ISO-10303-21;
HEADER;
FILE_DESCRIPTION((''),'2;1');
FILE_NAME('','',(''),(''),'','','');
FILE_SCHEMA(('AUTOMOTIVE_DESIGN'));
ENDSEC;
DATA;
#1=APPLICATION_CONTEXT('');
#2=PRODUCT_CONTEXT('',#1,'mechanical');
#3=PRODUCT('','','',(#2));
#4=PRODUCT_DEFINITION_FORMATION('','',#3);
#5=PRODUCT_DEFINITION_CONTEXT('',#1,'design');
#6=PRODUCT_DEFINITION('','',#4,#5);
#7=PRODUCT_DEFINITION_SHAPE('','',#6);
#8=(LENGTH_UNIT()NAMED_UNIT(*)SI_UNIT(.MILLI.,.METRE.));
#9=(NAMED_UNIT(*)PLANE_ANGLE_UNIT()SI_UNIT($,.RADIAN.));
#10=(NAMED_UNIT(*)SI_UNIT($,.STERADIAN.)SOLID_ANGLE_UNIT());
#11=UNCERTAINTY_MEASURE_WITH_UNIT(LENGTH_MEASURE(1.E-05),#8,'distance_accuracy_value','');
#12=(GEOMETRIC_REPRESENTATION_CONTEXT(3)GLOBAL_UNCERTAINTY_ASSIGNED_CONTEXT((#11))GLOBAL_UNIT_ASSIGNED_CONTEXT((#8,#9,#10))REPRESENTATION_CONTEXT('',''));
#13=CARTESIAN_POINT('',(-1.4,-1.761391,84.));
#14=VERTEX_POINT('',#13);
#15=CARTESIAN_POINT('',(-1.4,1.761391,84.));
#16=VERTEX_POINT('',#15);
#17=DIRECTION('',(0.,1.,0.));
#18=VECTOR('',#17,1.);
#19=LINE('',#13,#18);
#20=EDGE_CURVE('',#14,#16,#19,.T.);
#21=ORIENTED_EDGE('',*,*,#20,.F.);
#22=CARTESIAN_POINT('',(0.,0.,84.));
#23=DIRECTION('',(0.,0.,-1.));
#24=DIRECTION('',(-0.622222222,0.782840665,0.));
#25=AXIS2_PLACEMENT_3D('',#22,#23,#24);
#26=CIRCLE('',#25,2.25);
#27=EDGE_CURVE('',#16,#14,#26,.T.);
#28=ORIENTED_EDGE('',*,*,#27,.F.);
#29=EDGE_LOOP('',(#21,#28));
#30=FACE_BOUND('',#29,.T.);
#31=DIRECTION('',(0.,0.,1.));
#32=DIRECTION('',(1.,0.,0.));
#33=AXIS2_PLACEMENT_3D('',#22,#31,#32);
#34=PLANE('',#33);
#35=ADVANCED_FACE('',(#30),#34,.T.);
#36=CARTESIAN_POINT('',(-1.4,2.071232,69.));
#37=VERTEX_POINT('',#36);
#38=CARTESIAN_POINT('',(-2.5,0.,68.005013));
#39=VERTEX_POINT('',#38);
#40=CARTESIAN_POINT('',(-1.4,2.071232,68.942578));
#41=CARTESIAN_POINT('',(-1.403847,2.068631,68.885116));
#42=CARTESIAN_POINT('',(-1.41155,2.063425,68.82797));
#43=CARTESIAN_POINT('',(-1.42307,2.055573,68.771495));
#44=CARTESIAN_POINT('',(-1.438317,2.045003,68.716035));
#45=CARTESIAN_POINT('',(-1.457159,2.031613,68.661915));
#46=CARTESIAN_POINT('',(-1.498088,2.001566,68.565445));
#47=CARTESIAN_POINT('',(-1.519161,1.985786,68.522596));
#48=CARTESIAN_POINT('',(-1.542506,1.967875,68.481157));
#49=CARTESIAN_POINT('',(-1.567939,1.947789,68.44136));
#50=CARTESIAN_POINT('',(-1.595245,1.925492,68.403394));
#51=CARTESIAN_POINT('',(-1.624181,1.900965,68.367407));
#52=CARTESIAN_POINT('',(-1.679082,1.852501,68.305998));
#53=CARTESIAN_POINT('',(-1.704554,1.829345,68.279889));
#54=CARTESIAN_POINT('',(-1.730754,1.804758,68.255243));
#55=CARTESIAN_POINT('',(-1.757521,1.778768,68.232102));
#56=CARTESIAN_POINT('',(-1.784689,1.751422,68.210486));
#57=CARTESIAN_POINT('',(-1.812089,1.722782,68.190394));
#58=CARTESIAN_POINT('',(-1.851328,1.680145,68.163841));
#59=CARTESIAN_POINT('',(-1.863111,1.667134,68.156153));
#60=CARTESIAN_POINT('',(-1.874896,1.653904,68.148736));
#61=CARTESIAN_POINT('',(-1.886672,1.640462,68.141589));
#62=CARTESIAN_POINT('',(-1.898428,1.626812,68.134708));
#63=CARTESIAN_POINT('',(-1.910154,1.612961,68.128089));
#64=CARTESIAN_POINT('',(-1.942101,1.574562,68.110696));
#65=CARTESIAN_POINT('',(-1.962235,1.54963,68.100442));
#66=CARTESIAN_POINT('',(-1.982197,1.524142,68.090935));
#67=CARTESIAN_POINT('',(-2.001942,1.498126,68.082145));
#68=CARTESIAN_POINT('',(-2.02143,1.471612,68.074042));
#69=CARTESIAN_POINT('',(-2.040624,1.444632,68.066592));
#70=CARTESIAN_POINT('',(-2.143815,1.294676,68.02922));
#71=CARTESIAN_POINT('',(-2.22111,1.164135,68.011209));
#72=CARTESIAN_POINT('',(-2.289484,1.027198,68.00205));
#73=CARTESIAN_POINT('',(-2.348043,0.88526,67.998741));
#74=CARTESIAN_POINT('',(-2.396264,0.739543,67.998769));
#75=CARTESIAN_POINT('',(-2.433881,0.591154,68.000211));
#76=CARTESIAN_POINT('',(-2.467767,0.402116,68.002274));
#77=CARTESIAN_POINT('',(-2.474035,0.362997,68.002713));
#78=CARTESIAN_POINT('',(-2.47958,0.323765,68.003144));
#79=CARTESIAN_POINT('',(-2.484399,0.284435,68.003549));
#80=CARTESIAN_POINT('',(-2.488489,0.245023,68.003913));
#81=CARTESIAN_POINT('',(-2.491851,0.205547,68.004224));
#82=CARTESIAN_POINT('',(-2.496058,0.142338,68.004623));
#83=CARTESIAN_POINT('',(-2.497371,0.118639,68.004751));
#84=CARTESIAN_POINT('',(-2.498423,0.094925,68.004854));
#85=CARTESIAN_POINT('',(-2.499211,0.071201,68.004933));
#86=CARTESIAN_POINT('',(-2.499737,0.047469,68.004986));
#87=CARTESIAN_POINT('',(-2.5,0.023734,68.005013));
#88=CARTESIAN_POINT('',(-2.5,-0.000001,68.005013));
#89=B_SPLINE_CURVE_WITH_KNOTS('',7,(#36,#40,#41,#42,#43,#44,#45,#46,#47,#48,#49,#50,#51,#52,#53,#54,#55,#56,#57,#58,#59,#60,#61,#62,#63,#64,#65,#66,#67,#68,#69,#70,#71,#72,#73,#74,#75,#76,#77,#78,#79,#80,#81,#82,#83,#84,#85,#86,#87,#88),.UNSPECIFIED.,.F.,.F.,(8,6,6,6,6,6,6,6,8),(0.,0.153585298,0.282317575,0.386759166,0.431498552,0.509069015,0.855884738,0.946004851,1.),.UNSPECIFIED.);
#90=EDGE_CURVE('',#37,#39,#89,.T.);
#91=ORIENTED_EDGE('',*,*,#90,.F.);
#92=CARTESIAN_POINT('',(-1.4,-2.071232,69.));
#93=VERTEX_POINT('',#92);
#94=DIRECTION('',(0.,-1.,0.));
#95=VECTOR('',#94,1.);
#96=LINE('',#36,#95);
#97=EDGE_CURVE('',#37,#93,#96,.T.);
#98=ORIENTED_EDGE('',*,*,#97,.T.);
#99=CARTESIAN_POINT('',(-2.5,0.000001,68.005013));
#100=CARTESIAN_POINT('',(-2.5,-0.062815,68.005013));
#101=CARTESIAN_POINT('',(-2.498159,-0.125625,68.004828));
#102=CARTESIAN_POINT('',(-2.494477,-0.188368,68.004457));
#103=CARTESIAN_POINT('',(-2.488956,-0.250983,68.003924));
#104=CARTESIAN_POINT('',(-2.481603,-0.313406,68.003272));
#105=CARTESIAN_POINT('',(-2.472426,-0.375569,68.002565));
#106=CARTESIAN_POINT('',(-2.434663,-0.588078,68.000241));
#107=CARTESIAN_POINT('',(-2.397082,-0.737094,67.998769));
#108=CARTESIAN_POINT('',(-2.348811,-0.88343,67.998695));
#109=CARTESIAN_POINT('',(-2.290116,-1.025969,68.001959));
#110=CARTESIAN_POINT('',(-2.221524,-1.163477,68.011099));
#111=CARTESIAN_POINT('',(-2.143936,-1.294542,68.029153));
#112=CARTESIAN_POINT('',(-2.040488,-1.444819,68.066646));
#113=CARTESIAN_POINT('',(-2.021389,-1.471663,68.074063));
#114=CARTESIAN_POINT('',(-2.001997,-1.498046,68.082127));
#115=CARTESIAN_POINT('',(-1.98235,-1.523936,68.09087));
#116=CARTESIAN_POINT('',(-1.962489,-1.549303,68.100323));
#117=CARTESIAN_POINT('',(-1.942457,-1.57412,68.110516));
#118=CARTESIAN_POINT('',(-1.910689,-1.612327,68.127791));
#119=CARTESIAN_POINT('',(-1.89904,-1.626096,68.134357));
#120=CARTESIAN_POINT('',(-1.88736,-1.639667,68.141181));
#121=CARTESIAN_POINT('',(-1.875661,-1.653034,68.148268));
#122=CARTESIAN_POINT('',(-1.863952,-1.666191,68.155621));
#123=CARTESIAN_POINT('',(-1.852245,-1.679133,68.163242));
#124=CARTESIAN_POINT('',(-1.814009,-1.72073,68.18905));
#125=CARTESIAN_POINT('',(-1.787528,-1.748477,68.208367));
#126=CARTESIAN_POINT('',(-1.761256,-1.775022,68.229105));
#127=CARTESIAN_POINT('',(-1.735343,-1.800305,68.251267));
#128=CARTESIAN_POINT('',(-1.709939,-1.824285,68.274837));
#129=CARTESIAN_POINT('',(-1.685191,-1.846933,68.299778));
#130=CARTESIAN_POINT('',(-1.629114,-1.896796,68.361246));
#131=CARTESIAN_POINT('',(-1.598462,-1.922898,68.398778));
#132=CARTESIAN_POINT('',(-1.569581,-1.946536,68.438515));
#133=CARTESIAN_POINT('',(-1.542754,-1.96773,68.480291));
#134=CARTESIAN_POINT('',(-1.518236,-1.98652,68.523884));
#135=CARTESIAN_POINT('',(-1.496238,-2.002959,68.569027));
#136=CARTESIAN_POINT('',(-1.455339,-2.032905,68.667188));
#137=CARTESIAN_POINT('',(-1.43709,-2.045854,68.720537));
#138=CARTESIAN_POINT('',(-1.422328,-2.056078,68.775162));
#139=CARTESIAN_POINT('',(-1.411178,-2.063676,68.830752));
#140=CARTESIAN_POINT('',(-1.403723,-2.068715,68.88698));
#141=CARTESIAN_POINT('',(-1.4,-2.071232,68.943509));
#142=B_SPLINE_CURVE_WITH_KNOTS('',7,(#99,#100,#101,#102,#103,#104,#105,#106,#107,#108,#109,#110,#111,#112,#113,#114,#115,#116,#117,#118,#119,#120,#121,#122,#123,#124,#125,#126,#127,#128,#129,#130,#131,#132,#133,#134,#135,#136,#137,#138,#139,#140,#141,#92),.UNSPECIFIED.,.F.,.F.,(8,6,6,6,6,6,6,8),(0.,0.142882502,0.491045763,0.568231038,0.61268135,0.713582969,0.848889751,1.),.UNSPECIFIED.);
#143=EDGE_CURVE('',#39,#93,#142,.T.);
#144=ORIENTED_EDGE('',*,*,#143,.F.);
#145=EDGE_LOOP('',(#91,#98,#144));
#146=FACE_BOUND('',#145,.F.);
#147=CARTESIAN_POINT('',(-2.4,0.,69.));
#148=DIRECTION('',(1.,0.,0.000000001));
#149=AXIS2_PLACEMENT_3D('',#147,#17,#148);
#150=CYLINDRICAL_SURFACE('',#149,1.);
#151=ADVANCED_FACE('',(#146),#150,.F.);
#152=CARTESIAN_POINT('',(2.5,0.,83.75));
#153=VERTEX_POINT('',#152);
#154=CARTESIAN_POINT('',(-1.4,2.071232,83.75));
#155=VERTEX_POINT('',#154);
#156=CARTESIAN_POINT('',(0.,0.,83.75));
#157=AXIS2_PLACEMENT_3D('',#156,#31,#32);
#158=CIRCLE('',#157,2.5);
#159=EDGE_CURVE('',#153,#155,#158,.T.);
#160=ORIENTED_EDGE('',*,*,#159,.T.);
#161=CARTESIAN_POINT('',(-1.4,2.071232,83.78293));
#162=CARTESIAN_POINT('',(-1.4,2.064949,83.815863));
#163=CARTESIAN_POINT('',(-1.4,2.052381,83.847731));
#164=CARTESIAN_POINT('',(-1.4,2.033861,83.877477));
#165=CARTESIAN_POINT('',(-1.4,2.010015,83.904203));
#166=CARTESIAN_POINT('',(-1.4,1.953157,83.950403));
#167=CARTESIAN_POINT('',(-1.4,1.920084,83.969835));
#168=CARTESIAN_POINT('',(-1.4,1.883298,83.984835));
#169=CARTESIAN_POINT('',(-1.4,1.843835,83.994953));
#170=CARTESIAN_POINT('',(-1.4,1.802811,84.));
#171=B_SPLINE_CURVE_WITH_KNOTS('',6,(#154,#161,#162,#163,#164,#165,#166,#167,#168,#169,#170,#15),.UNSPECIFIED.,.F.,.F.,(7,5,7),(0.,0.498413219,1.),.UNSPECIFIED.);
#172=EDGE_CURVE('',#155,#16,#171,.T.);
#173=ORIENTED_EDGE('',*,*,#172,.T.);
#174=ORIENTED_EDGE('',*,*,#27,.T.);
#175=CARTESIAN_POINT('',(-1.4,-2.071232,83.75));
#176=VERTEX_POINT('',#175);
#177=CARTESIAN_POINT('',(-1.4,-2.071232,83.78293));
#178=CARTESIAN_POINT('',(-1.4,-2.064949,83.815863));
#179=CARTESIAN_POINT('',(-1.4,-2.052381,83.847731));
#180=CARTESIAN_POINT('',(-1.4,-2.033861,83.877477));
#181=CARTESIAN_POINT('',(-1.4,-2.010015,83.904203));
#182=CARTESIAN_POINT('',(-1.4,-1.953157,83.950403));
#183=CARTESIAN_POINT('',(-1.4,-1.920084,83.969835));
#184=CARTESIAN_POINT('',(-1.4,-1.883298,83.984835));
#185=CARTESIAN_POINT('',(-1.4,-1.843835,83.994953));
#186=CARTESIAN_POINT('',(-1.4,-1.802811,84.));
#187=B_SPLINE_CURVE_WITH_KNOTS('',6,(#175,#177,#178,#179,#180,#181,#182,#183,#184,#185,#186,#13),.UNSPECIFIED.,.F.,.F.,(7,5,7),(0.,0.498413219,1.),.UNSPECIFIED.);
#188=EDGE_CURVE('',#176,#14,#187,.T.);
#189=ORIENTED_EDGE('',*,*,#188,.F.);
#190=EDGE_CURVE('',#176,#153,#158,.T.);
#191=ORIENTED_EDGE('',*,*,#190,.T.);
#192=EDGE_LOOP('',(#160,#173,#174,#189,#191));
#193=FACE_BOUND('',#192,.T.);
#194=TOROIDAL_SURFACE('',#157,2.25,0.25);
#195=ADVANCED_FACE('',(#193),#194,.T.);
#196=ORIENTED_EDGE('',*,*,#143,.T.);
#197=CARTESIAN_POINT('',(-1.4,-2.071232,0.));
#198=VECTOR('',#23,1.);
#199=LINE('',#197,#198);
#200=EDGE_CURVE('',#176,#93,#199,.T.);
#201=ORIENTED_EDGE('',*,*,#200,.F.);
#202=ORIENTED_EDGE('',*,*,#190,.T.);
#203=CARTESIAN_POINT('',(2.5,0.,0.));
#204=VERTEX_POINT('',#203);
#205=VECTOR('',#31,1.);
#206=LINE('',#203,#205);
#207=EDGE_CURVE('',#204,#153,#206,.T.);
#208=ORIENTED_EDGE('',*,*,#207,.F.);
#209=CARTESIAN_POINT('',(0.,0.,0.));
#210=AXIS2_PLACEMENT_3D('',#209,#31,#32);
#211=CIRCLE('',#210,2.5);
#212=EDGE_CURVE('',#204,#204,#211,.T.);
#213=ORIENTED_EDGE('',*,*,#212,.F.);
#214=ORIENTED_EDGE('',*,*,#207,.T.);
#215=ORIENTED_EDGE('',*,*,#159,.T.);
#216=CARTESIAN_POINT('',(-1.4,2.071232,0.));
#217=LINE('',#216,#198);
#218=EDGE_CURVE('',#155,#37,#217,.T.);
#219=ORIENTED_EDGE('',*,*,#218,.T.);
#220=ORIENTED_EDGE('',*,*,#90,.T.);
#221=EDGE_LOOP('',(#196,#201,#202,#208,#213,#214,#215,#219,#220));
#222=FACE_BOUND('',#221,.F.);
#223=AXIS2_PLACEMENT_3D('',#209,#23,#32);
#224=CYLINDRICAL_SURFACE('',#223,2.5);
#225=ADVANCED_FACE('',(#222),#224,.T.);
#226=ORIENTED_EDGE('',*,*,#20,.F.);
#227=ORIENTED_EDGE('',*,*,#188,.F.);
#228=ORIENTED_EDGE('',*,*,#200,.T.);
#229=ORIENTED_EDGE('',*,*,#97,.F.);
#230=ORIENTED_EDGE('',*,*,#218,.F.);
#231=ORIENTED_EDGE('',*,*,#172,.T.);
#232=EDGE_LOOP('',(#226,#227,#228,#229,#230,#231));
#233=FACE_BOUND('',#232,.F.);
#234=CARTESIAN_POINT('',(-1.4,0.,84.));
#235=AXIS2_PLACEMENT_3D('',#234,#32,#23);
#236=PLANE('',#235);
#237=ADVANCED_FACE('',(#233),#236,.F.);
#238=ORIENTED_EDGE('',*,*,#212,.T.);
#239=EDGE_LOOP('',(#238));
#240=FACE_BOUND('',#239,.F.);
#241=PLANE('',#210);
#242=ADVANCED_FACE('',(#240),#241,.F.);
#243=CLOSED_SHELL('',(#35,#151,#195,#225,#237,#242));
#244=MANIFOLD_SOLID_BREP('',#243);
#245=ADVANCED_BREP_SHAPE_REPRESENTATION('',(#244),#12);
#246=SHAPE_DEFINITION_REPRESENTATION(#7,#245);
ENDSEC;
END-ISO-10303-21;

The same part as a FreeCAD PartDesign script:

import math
import FreeCAD as App
import Part
import Sketcher
from FreeCAD import Vector


def edges_at(feature, points):
    """Names of the edges that pass closest to the given points."""
    edges = feature.Shape.Edges
    near = lambda p: min(range(len(edges)), key=lambda i: edges[i].distToShape(Part.Vertex(*p))[0])
    return sorted({f"Edge{near(p) + 1}" for p in points})

doc = App.newDocument("Part")
body = doc.addObject("PartDesign::Body", "Body")

sketch1 = doc.addObject("Sketcher::SketchObject", "Sketch")
body.addObject(sketch1)
sketch1.AttachmentSupport = (doc.XY_Plane, [""])
sketch1.MapMode = "FlatFace"
sketch1.addGeometry(Part.Circle(Vector(0, 0, 0), Vector(0, 0, 1), 2.5), False)
sketch1.addConstraint(Sketcher.Constraint("Coincident", 0, 3, -1, 1))
sketch1.addConstraint(Sketcher.Constraint("Diameter", 0, 5.0))
pad1 = doc.addObject("PartDesign::Pad", "Pad")
body.addObject(pad1)
pad1.Profile = sketch1
pad1.Length = 84
doc.recompute()

fillet = doc.addObject("PartDesign::Fillet", "Fillet")
body.addObject(fillet)
fillet.Base = (pad1, edges_at(pad1, [(-2.5, 0, 84)]))
fillet.Radius = 0.25

sketch2 = doc.addObject("Sketcher::SketchObject", "Sketch001")
body.addObject(sketch2)
sketch2.AttachmentSupport = (doc.XZ_Plane, [""])
sketch2.MapMode = "FlatFace"
sketch2.addGeometry(Part.LineSegment(Vector(-1.4, 84, 0), Vector(-1.4, 69, 0)), False)
sketch2.addGeometry(Part.ArcOfCircle(Part.Circle(Vector(-2.4, 69, 0), Vector(0, 0, 1), 1), math.radians(-107), math.radians(0)), False)
sketch2.addGeometry(Part.LineSegment(Vector(-2.7, 68, 0), Vector(-2.7, 84, 0)), False)
sketch2.addGeometry(Part.LineSegment(Vector(-2.7, 84, 0), Vector(-1.4, 84, 0)), False)
sketch2.addConstraint(Sketcher.Constraint("Tangent", 0, 2, 1, 2))
sketch2.addConstraint(Sketcher.Constraint("Coincident", 1, 1, 2, 1))
sketch2.addConstraint(Sketcher.Constraint("Coincident", 2, 2, 3, 1))
sketch2.addConstraint(Sketcher.Constraint("Coincident", 3, 2, 0, 1))
sketch2.addConstraint(Sketcher.Constraint("Vertical", 0))
sketch2.addConstraint(Sketcher.Constraint("Vertical", 2))
sketch2.addConstraint(Sketcher.Constraint("Horizontal", 3))
sketch2.addConstraint(Sketcher.Constraint("Radius", 1, 1.0))
sketch2.addConstraint(Sketcher.Constraint("DistanceY", 0, 2, 0, 1, 15.0))
sketch2.addConstraint(Sketcher.Constraint("DistanceY", -1, 1, 1, 3, 69.0))
sketch2.addConstraint(Sketcher.Constraint("DistanceX", 1, 3, -1, 1, 2.4))
sketch2.addConstraint(Sketcher.Constraint("DistanceX", 3, 1, 3, 2, 1.296625))
pocket1 = doc.addObject("PartDesign::Pocket", "Pocket")
body.addObject(pocket1)
pocket1.Profile = sketch2
pocket1.Type = "ThroughAll"
pocket1.Midplane = True

doc.recompute()
